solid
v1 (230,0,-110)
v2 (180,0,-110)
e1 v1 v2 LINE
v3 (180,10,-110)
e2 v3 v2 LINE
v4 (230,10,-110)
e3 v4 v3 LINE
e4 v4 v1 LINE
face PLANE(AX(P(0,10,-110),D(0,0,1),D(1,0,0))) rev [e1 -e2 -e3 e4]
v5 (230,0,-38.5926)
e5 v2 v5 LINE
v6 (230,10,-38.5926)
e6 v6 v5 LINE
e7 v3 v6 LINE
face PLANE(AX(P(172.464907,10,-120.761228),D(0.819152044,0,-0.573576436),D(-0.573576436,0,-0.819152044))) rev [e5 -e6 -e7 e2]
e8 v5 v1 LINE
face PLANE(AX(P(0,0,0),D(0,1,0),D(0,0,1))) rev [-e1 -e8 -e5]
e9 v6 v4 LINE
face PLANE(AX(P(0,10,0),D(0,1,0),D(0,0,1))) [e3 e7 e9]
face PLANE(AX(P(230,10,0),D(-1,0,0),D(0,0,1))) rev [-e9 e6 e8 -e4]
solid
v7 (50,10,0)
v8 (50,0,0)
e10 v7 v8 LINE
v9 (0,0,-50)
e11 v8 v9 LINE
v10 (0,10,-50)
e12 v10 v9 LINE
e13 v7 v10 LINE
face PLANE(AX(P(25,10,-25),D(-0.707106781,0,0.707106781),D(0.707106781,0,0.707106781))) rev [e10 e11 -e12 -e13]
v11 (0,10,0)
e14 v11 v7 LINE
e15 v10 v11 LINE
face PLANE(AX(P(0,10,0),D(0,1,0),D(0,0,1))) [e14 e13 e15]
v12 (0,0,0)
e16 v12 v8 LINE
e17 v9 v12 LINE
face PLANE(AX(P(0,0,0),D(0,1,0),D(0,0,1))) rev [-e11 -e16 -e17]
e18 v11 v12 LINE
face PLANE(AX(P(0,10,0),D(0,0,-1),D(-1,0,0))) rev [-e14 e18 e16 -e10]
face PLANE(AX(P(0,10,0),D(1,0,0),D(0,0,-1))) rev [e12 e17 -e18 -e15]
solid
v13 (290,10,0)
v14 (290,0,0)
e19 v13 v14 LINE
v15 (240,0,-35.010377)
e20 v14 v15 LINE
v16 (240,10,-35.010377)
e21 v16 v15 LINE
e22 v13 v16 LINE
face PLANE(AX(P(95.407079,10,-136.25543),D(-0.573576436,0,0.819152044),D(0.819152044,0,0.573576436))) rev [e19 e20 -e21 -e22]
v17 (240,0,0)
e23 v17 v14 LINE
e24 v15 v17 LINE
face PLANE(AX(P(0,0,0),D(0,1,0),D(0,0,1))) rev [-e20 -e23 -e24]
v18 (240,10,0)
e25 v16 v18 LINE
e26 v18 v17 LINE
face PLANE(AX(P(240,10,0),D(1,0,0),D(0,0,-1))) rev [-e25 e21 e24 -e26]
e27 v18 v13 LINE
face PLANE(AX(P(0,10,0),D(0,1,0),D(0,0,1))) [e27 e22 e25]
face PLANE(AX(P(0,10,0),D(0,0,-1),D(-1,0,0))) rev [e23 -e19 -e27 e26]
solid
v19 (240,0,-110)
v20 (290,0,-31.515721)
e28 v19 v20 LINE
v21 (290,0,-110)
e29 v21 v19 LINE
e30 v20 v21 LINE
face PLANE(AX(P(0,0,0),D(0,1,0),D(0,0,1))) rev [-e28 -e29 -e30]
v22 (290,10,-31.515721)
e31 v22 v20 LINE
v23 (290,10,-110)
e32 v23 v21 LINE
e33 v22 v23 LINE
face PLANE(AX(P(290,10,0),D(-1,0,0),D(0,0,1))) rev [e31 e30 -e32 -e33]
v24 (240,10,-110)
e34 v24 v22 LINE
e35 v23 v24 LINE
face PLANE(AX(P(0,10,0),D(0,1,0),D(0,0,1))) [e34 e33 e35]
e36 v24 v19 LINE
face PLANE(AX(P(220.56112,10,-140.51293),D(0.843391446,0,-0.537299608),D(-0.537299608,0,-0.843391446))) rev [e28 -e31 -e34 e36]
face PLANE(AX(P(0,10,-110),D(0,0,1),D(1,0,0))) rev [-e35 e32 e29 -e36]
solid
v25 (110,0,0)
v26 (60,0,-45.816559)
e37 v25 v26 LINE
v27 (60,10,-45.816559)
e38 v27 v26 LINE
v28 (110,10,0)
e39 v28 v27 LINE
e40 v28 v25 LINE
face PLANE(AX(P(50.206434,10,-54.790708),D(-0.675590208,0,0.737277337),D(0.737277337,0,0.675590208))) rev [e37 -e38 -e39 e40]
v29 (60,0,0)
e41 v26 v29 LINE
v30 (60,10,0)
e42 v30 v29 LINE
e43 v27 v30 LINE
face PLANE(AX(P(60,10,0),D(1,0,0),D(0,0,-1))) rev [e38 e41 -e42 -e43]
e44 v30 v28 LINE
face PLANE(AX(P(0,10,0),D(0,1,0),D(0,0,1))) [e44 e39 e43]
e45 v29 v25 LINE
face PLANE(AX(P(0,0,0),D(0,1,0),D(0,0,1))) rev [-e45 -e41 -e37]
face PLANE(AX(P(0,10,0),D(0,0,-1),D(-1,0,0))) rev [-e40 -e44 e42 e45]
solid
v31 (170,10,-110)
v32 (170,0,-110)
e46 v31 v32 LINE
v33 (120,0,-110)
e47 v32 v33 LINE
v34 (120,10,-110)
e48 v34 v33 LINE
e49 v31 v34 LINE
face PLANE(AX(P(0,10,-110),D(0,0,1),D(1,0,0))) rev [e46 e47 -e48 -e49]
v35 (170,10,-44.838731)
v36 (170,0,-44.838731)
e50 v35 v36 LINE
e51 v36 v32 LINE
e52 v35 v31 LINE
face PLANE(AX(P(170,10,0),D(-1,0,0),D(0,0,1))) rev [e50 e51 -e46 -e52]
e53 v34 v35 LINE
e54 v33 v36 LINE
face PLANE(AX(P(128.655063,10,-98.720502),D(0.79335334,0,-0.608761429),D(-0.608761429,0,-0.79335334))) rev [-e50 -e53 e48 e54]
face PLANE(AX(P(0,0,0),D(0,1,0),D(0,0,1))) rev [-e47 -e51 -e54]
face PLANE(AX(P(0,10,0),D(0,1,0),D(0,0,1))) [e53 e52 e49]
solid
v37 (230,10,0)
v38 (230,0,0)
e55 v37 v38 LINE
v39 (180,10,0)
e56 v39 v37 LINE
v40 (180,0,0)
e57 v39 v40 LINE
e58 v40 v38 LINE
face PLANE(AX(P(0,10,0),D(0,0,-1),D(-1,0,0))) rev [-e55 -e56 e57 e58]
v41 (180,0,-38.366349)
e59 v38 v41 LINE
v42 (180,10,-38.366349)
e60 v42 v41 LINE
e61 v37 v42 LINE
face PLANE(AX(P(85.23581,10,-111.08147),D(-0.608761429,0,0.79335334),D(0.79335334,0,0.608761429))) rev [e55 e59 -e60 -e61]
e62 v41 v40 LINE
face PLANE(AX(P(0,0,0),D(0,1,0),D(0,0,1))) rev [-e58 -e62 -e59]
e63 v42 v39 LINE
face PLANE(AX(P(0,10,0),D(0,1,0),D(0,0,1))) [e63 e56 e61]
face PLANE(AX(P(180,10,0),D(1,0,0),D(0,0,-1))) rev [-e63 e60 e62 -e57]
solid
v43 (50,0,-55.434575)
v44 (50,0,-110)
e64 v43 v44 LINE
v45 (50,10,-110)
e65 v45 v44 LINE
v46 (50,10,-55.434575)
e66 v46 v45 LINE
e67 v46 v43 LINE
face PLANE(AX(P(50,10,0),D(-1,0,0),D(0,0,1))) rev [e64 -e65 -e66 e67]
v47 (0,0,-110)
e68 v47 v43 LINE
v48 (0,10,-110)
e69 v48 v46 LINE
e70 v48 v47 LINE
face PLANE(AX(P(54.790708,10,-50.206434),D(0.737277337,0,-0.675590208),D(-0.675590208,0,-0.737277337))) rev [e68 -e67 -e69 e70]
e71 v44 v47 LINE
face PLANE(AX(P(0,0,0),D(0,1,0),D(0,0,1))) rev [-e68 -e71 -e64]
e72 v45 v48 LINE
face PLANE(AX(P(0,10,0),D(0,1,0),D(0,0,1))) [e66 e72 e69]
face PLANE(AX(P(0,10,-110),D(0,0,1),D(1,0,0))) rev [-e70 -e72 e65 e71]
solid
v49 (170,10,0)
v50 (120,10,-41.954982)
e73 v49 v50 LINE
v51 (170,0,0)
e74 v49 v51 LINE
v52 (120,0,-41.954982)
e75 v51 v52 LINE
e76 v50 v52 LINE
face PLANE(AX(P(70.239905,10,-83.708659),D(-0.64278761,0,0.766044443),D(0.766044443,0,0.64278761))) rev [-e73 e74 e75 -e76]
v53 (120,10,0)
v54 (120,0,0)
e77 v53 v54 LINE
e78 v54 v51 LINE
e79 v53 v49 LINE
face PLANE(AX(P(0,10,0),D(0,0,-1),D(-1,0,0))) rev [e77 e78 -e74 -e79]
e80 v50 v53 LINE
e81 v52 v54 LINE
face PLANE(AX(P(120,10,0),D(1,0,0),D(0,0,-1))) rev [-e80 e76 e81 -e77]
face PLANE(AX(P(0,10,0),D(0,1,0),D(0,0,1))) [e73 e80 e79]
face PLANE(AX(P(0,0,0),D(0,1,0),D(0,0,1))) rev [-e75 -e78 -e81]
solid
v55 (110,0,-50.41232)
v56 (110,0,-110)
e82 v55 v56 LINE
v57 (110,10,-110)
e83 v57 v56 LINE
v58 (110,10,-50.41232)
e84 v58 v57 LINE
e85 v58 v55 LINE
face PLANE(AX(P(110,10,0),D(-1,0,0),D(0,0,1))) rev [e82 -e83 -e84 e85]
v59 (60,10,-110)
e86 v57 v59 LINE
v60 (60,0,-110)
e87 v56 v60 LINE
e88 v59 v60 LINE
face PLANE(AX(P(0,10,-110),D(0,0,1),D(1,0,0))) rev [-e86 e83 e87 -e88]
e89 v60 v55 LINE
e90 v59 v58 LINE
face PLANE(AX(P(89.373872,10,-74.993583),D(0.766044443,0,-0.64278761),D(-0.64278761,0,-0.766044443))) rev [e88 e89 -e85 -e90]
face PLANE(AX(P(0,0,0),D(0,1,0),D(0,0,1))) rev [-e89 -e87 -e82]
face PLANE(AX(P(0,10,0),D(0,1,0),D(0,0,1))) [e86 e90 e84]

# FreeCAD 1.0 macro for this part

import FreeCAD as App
import Part
import Sketcher
Q = App.Units.Quantity


def add_polygon(sketch, points):
    """Adds a closed chain of lines whose ends are joined by coincident constraints."""
    first, n = sketch.GeometryCount, len(points)
    for a, b in zip(points, points[1:] + points[:1]):
        sketch.addGeometry(Part.LineSegment(App.Vector(*a, 0), App.Vector(*b, 0)), False)
    for i in range(n):
        sketch.addConstraint(Sketcher.Constraint("Coincident", first + i, 2, first + (i + 1) % n, 1))

doc = App.newDocument("Part")
body = doc.addObject("PartDesign::Body", "Body")

sketch1 = body.newObject("Sketcher::SketchObject", "Sketch")
sketch1.AttachmentSupport = (doc.getObject("XZ_Plane"), [""])
sketch1.MapMode = "FlatFace"
add_polygon(sketch1, [(50, -55), (50, -110), (0, -110)])
sketch1.addConstraint(Sketcher.Constraint("Vertical", 0))
sketch1.addConstraint(Sketcher.Constraint("Horizontal", 1))
sketch1.addConstraint(Sketcher.Constraint("PointOnObject", 1, 2, -2))
sketch1.addConstraint(Sketcher.Constraint("DistanceX", 1, 2, 1, 1, Q("50 mm")))
sketch1.addConstraint(Sketcher.Constraint("DistanceY", 0, 2, -1, 1, Q("110 mm")))
sketch1.addConstraint(Sketcher.Constraint("Angle", 2, Q("47.5 deg")))
pad1 = body.newObject("PartDesign::Pad", "Pad")
pad1.Profile = sketch1
pad1.Length = 10
pad1.Reversed = True
body2 = doc.addObject("PartDesign::Body", "Body001")

sketch2 = body2.newObject("Sketcher::SketchObject", "Sketch001")
sketch2.AttachmentSupport = (doc.getObject("XZ_Plane001"), [""])
sketch2.MapMode = "FlatFace"
add_polygon(sketch2, [(110, -50.41232), (110, -110), (60, -110)])
sketch2.addConstraint(Sketcher.Constraint("Vertical", 0))
sketch2.addConstraint(Sketcher.Constraint("Horizontal", 1))
sketch2.addConstraint(Sketcher.Constraint("DistanceX", 1, 2, 1, 1, Q("50 mm")))
sketch2.addConstraint(Sketcher.Constraint("Angle", 2, Q("50 deg")))
sketch2.addConstraint(Sketcher.Constraint("DistanceX", -1, 1, 0, 2, Q("110 mm")))
sketch2.addConstraint(Sketcher.Constraint("DistanceY", 0, 2, -1, 1, Q("110 mm")))
pad2 = body2.newObject("PartDesign::Pad", "Pad001")
pad2.Profile = sketch2
pad2.Length = 10
pad2.Reversed = True
body3 = doc.addObject("PartDesign::Body", "Body002")

sketch3 = body3.newObject("Sketcher::SketchObject", "Sketch002")
sketch3.AttachmentSupport = (doc.getObject("XZ_Plane002"), [""])
sketch3.MapMode = "FlatFace"
add_polygon(sketch3, [(170, -110), (120, -110), (170, -45)])
sketch3.addConstraint(Sketcher.Constraint("Horizontal", 0))
sketch3.addConstraint(Sketcher.Constraint("Vertical", 2))
sketch3.addConstraint(Sketcher.Constraint("DistanceX", 0, 2, 0, 1, Q("50 mm")))
sketch3.addConstraint(Sketcher.Constraint("DistanceX", -1, 1, 0, 2, Q("120 mm")))
sketch3.addConstraint(Sketcher.Constraint("DistanceY", 0, 2, -1, 1, Q("110 mm")))
sketch3.addConstraint(Sketcher.Constraint("Angle", 1, Q("52.5 deg")))
pad3 = body3.newObject("PartDesign::Pad", "Pad002")
pad3.Profile = sketch3
pad3.Length = 10
pad3.Reversed = True
body4 = doc.addObject("PartDesign::Body", "Body003")

sketch4 = body4.newObject("Sketcher::SketchObject", "Sketch003")
sketch4.AttachmentSupport = (doc.getObject("XZ_Plane003"), [""])
sketch4.MapMode = "FlatFace"
add_polygon(sketch4, [(230, -39), (230, -110), (180, -110)])
sketch4.addConstraint(Sketcher.Constraint("Vertical", 0))
sketch4.addConstraint(Sketcher.Constraint("Horizontal", 1))
sketch4.addConstraint(Sketcher.Constraint("DistanceX", 1, 2, 1, 1, Q("50 mm")))
sketch4.addConstraint(Sketcher.Constraint("Angle", 2, Q("55 deg")))
sketch4.addConstraint(Sketcher.Constraint("DistanceX", -1, 1, 0, 2, Q("230 mm")))
sketch4.addConstraint(Sketcher.Constraint("DistanceY", 0, 2, -1, 1, Q("110 mm")))
pad4 = body4.newObject("PartDesign::Pad", "Pad003")
pad4.Profile = sketch4
pad4.Length = 10
pad4.Reversed = True
body5 = doc.addObject("PartDesign::Body", "Body004")

sketch5 = body5.newObject("Sketcher::SketchObject", "Sketch004")
sketch5.AttachmentSupport = (doc.getObject("XZ_Plane004"), [""])
sketch5.MapMode = "FlatFace"
add_polygon(sketch5, [(290, -32), (290, -110), (240, -110)])
sketch5.addConstraint(Sketcher.Constraint("Vertical", 0))
sketch5.addConstraint(Sketcher.Constraint("Horizontal", 1))
sketch5.addConstraint(Sketcher.Constraint("DistanceX", 1, 2, 1, 1, Q("50 mm")))
sketch5.addConstraint(Sketcher.Constraint("DistanceX", -1, 1, 0, 2, Q("290 mm")))
sketch5.addConstraint(Sketcher.Constraint("DistanceY", 0, 2, -1, 1, Q("110 mm")))
sketch5.addConstraint(Sketcher.Constraint("Angle", 2, Q("57.5 deg")))
pad5 = body5.newObject("PartDesign::Pad", "Pad004")
pad5.Profile = sketch5
pad5.Length = 10
pad5.Reversed = True
body6 = doc.addObject("PartDesign::Body", "Body005")

sketch6 = body6.newObject("Sketcher::SketchObject", "Sketch005")
sketch6.AttachmentSupport = (doc.getObject("XZ_Plane005"), [""])
sketch6.MapMode = "FlatFace"
add_polygon(sketch6, [(290, 0), (240, -35), (240, 0)])
sketch6.addConstraint(Sketcher.Constraint("Vertical", 1))
sketch6.addConstraint(Sketcher.Constraint("Horizontal", 2))
sketch6.addConstraint(Sketcher.Constraint("PointOnObject", 1, 2, -1))
sketch6.addConstraint(Sketcher.Constraint("DistanceX", 2, 1, 2, 2, Q("50 mm")))
sketch6.addConstraint(Sketcher.Constraint("Angle", 0, Q("-145 deg")))
sketch6.addConstraint(Sketcher.Constraint("DistanceX", -1, 1, 0, 2, Q("240 mm")))
pad6 = body6.newObject("PartDesign::Pad", "Pad005")
pad6.Profile = sketch6
pad6.Length = 10
pad6.Reversed = True
body7 = doc.addObject("PartDesign::Body", "Body006")

sketch7 = body7.newObject("Sketcher::SketchObject", "Sketch006")
sketch7.AttachmentSupport = (doc.getObject("XZ_Plane006"), [""])
sketch7.MapMode = "FlatFace"
add_polygon(sketch7, [(230, 0), (180, -38), (180, 0)])
sketch7.addConstraint(Sketcher.Constraint("Vertical", 1))
sketch7.addConstraint(Sketcher.Constraint("Horizontal", 2))
sketch7.addConstraint(Sketcher.Constraint("PointOnObject", 1, 2, -1))
sketch7.addConstraint(Sketcher.Constraint("DistanceX", 2, 1, 2, 2, Q("50 mm")))
sketch7.addConstraint(Sketcher.Constraint("DistanceX", -1, 1, 0, 2, Q("180 mm")))
sketch7.addConstraint(Sketcher.Constraint("Angle", 0, Q("-142.5 deg")))
pad7 = body7.newObject("PartDesign::Pad", "Pad006")
pad7.Profile = sketch7
pad7.Length = 10
pad7.Reversed = True
body8 = doc.addObject("PartDesign::Body", "Body007")

sketch8 = body8.newObject("Sketcher::SketchObject", "Sketch007")
sketch8.AttachmentSupport = (doc.getObject("XZ_Plane007"), [""])
sketch8.MapMode = "FlatFace"
add_polygon(sketch8, [(170, 0), (120, -42), (120, 0)])
sketch8.addConstraint(Sketcher.Constraint("Vertical", 1))
sketch8.addConstraint(Sketcher.Constraint("Horizontal", 2))
sketch8.addConstraint(Sketcher.Constraint("PointOnObject", 1, 2, -1))
sketch8.addConstraint(Sketcher.Constraint("DistanceX", 2, 1, 2, 2, Q("50 mm")))
sketch8.addConstraint(Sketcher.Constraint("Angle", 0, Q("-140 deg")))
sketch8.addConstraint(Sketcher.Constraint("DistanceX", -1, 1, 0, 2, Q("120 mm")))
pad8 = body8.newObject("PartDesign::Pad", "Pad007")
pad8.Profile = sketch8
pad8.Length = 10
pad8.Reversed = True
body9 = doc.addObject("PartDesign::Body", "Body008")

sketch9 = body9.newObject("Sketcher::SketchObject", "Sketch008")
sketch9.AttachmentSupport = (doc.getObject("XZ_Plane008"), [""])
sketch9.MapMode = "FlatFace"
add_polygon(sketch9, [(110, 0), (60, -46), (60, 0)])
sketch9.addConstraint(Sketcher.Constraint("Vertical", 1))
sketch9.addConstraint(Sketcher.Constraint("Horizontal", 2))
sketch9.addConstraint(Sketcher.Constraint("PointOnObject", 1, 2, -1))
sketch9.addConstraint(Sketcher.Constraint("DistanceX", 2, 1, 2, 2, Q("50 mm")))
sketch9.addConstraint(Sketcher.Constraint("DistanceX", -1, 1, 0, 2, Q("60 mm")))
sketch9.addConstraint(Sketcher.Constraint("Angle", 0, Q("-137.5 deg")))
pad9 = body9.newObject("PartDesign::Pad", "Pad008")
pad9.Profile = sketch9
pad9.Length = 10
pad9.Reversed = True
body10 = doc.addObject("PartDesign::Body", "Body009")

sketch10 = body10.newObject("Sketcher::SketchObject", "Sketch009")
sketch10.AttachmentSupport = (doc.getObject("XZ_Plane009"), [""])
sketch10.MapMode = "FlatFace"
add_polygon(sketch10, [(50, 0), (0, -50), (0, 0)])
sketch10.addConstraint(Sketcher.Constraint("Vertical", 1))
sketch10.addConstraint(Sketcher.Constraint("Horizontal", 2))
sketch10.addConstraint(Sketcher.Constraint("Coincident", 1, 2, -1, 1))
sketch10.addConstraint(Sketcher.Constraint("Equal", 2, 1))
sketch10.addConstraint(Sketcher.Constraint("DistanceX", 2, 1, 2, 2, Q("50 mm")))
pad10 = body10.newObject("PartDesign::Pad", "Pad009")
pad10.Profile = sketch10
pad10.Length = 10
pad10.Reversed = True

doc.recompute()
